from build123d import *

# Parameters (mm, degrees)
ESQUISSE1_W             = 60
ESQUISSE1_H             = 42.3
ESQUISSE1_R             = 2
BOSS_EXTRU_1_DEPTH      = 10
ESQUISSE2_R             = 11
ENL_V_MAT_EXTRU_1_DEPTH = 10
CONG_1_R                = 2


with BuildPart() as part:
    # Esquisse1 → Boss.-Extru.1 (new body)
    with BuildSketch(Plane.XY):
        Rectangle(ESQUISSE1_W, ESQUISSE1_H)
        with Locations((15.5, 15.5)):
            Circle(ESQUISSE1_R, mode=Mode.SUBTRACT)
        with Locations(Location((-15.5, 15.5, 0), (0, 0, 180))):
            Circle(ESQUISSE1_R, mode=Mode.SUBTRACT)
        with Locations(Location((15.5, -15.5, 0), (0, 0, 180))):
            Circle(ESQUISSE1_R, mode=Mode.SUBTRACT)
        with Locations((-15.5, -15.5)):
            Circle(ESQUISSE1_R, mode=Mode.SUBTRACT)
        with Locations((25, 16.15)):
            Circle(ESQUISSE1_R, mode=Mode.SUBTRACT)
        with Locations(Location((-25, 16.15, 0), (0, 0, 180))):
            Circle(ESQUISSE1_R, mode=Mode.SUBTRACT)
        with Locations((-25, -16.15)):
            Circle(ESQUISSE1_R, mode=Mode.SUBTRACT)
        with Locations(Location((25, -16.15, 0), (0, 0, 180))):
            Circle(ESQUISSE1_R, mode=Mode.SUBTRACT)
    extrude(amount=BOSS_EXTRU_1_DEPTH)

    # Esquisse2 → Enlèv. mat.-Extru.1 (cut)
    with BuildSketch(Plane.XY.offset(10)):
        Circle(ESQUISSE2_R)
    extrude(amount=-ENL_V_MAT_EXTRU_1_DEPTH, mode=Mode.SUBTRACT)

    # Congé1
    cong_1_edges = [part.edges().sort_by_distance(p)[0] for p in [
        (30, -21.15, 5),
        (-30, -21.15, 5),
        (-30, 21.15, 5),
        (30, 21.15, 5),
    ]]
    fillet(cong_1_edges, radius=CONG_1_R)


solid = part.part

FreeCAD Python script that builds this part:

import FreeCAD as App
import Part
import Sketcher
from FreeCAD import Vector


def edges_at(feature, points):
    """Names of the edges that pass closest to the given points."""
    edges = feature.Shape.Edges
    near = lambda p: min(range(len(edges)), key=lambda i: edges[i].distToShape(Part.Vertex(*p))[0])
    return sorted({f"Edge{near(p) + 1}" for p in points})

doc = App.newDocument("Part")
body = doc.addObject("PartDesign::Body", "Body")

# Sketch on XY plane
sketch1 = doc.addObject("Sketcher::SketchObject", "Sketch")
body.addObject(sketch1)
sketch1.AttachmentSupport = (doc.XY_Plane, [""])
sketch1.MapMode = "FlatFace"
sketch1.addGeometry([
    Part.LineSegment(Vector(-30, 21.1, 0), Vector(-30, -21.1, 0)),  # 0
    Part.LineSegment(Vector(-30, -21.1, 0), Vector(30, -21.1, 0)),  # 1
    Part.LineSegment(Vector(30, -21.1, 0), Vector(30, 21.1, 0)),  # 2
    Part.LineSegment(Vector(30, 21.1, 0), Vector(-30, 21.1, 0)),  # 3
    Part.Circle(Vector(-25, -16.1, 0), Vector(0, 0, 1), 2),  # 4
    Part.Circle(Vector(-15.5, -15.5, 0), Vector(0, 0, 1), 2),  # 5
    Part.Circle(Vector(15.5, -15.5, 0), Vector(0, 0, 1), 2),  # 6
    Part.Circle(Vector(25, -16.1, 0), Vector(0, 0, 1), 2),  # 7
    Part.Circle(Vector(-25, 16.1, 0), Vector(0, 0, 1), 2),  # 8
    Part.Circle(Vector(-15.5, 15.5, 0), Vector(0, 0, 1), 2),  # 9
    Part.Circle(Vector(15.5, 15.5, 0), Vector(0, 0, 1), 2),  # 10
    Part.Circle(Vector(25, 16.1, 0), Vector(0, 0, 1), 2),  # 11
], False)
sketch1.addConstraint([
    Sketcher.Constraint("Coincident", 0, 2, 1, 1),
    Sketcher.Constraint("Coincident", 1, 2, 2, 1),
    Sketcher.Constraint("Coincident", 2, 2, 3, 1),
    Sketcher.Constraint("Coincident", 3, 2, 0, 1),
    Sketcher.Constraint("Vertical", 0),
    Sketcher.Constraint("Horizontal", 1),
    Sketcher.Constraint("Vertical", 2),
    Sketcher.Constraint("Horizontal", 3),
    Sketcher.Constraint("Equal", 4, 5),
    Sketcher.Constraint("Equal", 5, 6),
    Sketcher.Constraint("Equal", 6, 7),
    Sketcher.Constraint("Equal", 7, 8),
    Sketcher.Constraint("Equal", 8, 9),
    Sketcher.Constraint("Equal", 9, 10),
    Sketcher.Constraint("Equal", 10, 11),
    Sketcher.Constraint("Symmetric", 7, 3, 8, 3, -1, 1),
    Sketcher.Constraint("Symmetric", 6, 3, 9, 3, -1, 1),
    Sketcher.Constraint("Symmetric", 5, 3, 10, 3, -1, 1),
    Sketcher.Constraint("Symmetric", 4, 3, 11, 3, -1, 1),
    Sketcher.Constraint("Symmetric", 0, 2, 2, 2, -1, 1),
    Sketcher.Constraint("Symmetric", 5, 3, 6, 3, -2),
    Sketcher.Constraint("Symmetric", 4, 3, 7, 3, -2),
    Sketcher.Constraint("Diameter", 4, 4.0),
    Sketcher.Constraint("DistanceX", 1, 1, 1, 2, 60.0),
    Sketcher.Constraint("DistanceY", 0, 2, 0, 1, 42.3),
    Sketcher.Constraint("DistanceX", 4, 3, -1, 1, 25.0),
    Sketcher.Constraint("DistanceX", 5, 3, 6, 3, 31.0),
    Sketcher.Constraint("DistanceY", 5, 3, 9, 3, 31.0),
    Sketcher.Constraint("DistanceY", 0, 2, 4, 3, 5.0),
])
pad1 = doc.addObject("PartDesign::Pad", "Pad")
body.addObject(pad1)
pad1.Profile = sketch1
pad1.Length = 10

# Sketch on XY plane
sketch2 = doc.addObject("Sketcher::SketchObject", "Sketch001")
body.addObject(sketch2)
sketch2.AttachmentSupport = (doc.XY_Plane, [""])
sketch2.MapMode = "FlatFace"
sketch2.AttachmentOffset = App.Placement(Vector(0, 0, 10), App.Rotation())
sketch2.addGeometry(Part.Circle(Vector(0, 0, 0), Vector(0, 0, 1), 11), False)
sketch2.addConstraint([
    Sketcher.Constraint("Coincident", 0, 3, -1, 1),
    Sketcher.Constraint("Diameter", 0, 22.0),
])
pocket1 = doc.addObject("PartDesign::Pocket", "Pocket")
body.addObject(pocket1)
pocket1.Profile = sketch2
pocket1.Length = 10
doc.recompute()

fillet = doc.addObject("PartDesign::Fillet", "Fillet")
body.addObject(fillet)
fillet.Base = (pocket1, edges_at(pocket1, [
    (30, -21.15, 5),
    (-30, -21.15, 5),
    (-30, 21.15, 5),
    (30, 21.15, 5),
]))
fillet.Radius = 2

doc.recompute()
